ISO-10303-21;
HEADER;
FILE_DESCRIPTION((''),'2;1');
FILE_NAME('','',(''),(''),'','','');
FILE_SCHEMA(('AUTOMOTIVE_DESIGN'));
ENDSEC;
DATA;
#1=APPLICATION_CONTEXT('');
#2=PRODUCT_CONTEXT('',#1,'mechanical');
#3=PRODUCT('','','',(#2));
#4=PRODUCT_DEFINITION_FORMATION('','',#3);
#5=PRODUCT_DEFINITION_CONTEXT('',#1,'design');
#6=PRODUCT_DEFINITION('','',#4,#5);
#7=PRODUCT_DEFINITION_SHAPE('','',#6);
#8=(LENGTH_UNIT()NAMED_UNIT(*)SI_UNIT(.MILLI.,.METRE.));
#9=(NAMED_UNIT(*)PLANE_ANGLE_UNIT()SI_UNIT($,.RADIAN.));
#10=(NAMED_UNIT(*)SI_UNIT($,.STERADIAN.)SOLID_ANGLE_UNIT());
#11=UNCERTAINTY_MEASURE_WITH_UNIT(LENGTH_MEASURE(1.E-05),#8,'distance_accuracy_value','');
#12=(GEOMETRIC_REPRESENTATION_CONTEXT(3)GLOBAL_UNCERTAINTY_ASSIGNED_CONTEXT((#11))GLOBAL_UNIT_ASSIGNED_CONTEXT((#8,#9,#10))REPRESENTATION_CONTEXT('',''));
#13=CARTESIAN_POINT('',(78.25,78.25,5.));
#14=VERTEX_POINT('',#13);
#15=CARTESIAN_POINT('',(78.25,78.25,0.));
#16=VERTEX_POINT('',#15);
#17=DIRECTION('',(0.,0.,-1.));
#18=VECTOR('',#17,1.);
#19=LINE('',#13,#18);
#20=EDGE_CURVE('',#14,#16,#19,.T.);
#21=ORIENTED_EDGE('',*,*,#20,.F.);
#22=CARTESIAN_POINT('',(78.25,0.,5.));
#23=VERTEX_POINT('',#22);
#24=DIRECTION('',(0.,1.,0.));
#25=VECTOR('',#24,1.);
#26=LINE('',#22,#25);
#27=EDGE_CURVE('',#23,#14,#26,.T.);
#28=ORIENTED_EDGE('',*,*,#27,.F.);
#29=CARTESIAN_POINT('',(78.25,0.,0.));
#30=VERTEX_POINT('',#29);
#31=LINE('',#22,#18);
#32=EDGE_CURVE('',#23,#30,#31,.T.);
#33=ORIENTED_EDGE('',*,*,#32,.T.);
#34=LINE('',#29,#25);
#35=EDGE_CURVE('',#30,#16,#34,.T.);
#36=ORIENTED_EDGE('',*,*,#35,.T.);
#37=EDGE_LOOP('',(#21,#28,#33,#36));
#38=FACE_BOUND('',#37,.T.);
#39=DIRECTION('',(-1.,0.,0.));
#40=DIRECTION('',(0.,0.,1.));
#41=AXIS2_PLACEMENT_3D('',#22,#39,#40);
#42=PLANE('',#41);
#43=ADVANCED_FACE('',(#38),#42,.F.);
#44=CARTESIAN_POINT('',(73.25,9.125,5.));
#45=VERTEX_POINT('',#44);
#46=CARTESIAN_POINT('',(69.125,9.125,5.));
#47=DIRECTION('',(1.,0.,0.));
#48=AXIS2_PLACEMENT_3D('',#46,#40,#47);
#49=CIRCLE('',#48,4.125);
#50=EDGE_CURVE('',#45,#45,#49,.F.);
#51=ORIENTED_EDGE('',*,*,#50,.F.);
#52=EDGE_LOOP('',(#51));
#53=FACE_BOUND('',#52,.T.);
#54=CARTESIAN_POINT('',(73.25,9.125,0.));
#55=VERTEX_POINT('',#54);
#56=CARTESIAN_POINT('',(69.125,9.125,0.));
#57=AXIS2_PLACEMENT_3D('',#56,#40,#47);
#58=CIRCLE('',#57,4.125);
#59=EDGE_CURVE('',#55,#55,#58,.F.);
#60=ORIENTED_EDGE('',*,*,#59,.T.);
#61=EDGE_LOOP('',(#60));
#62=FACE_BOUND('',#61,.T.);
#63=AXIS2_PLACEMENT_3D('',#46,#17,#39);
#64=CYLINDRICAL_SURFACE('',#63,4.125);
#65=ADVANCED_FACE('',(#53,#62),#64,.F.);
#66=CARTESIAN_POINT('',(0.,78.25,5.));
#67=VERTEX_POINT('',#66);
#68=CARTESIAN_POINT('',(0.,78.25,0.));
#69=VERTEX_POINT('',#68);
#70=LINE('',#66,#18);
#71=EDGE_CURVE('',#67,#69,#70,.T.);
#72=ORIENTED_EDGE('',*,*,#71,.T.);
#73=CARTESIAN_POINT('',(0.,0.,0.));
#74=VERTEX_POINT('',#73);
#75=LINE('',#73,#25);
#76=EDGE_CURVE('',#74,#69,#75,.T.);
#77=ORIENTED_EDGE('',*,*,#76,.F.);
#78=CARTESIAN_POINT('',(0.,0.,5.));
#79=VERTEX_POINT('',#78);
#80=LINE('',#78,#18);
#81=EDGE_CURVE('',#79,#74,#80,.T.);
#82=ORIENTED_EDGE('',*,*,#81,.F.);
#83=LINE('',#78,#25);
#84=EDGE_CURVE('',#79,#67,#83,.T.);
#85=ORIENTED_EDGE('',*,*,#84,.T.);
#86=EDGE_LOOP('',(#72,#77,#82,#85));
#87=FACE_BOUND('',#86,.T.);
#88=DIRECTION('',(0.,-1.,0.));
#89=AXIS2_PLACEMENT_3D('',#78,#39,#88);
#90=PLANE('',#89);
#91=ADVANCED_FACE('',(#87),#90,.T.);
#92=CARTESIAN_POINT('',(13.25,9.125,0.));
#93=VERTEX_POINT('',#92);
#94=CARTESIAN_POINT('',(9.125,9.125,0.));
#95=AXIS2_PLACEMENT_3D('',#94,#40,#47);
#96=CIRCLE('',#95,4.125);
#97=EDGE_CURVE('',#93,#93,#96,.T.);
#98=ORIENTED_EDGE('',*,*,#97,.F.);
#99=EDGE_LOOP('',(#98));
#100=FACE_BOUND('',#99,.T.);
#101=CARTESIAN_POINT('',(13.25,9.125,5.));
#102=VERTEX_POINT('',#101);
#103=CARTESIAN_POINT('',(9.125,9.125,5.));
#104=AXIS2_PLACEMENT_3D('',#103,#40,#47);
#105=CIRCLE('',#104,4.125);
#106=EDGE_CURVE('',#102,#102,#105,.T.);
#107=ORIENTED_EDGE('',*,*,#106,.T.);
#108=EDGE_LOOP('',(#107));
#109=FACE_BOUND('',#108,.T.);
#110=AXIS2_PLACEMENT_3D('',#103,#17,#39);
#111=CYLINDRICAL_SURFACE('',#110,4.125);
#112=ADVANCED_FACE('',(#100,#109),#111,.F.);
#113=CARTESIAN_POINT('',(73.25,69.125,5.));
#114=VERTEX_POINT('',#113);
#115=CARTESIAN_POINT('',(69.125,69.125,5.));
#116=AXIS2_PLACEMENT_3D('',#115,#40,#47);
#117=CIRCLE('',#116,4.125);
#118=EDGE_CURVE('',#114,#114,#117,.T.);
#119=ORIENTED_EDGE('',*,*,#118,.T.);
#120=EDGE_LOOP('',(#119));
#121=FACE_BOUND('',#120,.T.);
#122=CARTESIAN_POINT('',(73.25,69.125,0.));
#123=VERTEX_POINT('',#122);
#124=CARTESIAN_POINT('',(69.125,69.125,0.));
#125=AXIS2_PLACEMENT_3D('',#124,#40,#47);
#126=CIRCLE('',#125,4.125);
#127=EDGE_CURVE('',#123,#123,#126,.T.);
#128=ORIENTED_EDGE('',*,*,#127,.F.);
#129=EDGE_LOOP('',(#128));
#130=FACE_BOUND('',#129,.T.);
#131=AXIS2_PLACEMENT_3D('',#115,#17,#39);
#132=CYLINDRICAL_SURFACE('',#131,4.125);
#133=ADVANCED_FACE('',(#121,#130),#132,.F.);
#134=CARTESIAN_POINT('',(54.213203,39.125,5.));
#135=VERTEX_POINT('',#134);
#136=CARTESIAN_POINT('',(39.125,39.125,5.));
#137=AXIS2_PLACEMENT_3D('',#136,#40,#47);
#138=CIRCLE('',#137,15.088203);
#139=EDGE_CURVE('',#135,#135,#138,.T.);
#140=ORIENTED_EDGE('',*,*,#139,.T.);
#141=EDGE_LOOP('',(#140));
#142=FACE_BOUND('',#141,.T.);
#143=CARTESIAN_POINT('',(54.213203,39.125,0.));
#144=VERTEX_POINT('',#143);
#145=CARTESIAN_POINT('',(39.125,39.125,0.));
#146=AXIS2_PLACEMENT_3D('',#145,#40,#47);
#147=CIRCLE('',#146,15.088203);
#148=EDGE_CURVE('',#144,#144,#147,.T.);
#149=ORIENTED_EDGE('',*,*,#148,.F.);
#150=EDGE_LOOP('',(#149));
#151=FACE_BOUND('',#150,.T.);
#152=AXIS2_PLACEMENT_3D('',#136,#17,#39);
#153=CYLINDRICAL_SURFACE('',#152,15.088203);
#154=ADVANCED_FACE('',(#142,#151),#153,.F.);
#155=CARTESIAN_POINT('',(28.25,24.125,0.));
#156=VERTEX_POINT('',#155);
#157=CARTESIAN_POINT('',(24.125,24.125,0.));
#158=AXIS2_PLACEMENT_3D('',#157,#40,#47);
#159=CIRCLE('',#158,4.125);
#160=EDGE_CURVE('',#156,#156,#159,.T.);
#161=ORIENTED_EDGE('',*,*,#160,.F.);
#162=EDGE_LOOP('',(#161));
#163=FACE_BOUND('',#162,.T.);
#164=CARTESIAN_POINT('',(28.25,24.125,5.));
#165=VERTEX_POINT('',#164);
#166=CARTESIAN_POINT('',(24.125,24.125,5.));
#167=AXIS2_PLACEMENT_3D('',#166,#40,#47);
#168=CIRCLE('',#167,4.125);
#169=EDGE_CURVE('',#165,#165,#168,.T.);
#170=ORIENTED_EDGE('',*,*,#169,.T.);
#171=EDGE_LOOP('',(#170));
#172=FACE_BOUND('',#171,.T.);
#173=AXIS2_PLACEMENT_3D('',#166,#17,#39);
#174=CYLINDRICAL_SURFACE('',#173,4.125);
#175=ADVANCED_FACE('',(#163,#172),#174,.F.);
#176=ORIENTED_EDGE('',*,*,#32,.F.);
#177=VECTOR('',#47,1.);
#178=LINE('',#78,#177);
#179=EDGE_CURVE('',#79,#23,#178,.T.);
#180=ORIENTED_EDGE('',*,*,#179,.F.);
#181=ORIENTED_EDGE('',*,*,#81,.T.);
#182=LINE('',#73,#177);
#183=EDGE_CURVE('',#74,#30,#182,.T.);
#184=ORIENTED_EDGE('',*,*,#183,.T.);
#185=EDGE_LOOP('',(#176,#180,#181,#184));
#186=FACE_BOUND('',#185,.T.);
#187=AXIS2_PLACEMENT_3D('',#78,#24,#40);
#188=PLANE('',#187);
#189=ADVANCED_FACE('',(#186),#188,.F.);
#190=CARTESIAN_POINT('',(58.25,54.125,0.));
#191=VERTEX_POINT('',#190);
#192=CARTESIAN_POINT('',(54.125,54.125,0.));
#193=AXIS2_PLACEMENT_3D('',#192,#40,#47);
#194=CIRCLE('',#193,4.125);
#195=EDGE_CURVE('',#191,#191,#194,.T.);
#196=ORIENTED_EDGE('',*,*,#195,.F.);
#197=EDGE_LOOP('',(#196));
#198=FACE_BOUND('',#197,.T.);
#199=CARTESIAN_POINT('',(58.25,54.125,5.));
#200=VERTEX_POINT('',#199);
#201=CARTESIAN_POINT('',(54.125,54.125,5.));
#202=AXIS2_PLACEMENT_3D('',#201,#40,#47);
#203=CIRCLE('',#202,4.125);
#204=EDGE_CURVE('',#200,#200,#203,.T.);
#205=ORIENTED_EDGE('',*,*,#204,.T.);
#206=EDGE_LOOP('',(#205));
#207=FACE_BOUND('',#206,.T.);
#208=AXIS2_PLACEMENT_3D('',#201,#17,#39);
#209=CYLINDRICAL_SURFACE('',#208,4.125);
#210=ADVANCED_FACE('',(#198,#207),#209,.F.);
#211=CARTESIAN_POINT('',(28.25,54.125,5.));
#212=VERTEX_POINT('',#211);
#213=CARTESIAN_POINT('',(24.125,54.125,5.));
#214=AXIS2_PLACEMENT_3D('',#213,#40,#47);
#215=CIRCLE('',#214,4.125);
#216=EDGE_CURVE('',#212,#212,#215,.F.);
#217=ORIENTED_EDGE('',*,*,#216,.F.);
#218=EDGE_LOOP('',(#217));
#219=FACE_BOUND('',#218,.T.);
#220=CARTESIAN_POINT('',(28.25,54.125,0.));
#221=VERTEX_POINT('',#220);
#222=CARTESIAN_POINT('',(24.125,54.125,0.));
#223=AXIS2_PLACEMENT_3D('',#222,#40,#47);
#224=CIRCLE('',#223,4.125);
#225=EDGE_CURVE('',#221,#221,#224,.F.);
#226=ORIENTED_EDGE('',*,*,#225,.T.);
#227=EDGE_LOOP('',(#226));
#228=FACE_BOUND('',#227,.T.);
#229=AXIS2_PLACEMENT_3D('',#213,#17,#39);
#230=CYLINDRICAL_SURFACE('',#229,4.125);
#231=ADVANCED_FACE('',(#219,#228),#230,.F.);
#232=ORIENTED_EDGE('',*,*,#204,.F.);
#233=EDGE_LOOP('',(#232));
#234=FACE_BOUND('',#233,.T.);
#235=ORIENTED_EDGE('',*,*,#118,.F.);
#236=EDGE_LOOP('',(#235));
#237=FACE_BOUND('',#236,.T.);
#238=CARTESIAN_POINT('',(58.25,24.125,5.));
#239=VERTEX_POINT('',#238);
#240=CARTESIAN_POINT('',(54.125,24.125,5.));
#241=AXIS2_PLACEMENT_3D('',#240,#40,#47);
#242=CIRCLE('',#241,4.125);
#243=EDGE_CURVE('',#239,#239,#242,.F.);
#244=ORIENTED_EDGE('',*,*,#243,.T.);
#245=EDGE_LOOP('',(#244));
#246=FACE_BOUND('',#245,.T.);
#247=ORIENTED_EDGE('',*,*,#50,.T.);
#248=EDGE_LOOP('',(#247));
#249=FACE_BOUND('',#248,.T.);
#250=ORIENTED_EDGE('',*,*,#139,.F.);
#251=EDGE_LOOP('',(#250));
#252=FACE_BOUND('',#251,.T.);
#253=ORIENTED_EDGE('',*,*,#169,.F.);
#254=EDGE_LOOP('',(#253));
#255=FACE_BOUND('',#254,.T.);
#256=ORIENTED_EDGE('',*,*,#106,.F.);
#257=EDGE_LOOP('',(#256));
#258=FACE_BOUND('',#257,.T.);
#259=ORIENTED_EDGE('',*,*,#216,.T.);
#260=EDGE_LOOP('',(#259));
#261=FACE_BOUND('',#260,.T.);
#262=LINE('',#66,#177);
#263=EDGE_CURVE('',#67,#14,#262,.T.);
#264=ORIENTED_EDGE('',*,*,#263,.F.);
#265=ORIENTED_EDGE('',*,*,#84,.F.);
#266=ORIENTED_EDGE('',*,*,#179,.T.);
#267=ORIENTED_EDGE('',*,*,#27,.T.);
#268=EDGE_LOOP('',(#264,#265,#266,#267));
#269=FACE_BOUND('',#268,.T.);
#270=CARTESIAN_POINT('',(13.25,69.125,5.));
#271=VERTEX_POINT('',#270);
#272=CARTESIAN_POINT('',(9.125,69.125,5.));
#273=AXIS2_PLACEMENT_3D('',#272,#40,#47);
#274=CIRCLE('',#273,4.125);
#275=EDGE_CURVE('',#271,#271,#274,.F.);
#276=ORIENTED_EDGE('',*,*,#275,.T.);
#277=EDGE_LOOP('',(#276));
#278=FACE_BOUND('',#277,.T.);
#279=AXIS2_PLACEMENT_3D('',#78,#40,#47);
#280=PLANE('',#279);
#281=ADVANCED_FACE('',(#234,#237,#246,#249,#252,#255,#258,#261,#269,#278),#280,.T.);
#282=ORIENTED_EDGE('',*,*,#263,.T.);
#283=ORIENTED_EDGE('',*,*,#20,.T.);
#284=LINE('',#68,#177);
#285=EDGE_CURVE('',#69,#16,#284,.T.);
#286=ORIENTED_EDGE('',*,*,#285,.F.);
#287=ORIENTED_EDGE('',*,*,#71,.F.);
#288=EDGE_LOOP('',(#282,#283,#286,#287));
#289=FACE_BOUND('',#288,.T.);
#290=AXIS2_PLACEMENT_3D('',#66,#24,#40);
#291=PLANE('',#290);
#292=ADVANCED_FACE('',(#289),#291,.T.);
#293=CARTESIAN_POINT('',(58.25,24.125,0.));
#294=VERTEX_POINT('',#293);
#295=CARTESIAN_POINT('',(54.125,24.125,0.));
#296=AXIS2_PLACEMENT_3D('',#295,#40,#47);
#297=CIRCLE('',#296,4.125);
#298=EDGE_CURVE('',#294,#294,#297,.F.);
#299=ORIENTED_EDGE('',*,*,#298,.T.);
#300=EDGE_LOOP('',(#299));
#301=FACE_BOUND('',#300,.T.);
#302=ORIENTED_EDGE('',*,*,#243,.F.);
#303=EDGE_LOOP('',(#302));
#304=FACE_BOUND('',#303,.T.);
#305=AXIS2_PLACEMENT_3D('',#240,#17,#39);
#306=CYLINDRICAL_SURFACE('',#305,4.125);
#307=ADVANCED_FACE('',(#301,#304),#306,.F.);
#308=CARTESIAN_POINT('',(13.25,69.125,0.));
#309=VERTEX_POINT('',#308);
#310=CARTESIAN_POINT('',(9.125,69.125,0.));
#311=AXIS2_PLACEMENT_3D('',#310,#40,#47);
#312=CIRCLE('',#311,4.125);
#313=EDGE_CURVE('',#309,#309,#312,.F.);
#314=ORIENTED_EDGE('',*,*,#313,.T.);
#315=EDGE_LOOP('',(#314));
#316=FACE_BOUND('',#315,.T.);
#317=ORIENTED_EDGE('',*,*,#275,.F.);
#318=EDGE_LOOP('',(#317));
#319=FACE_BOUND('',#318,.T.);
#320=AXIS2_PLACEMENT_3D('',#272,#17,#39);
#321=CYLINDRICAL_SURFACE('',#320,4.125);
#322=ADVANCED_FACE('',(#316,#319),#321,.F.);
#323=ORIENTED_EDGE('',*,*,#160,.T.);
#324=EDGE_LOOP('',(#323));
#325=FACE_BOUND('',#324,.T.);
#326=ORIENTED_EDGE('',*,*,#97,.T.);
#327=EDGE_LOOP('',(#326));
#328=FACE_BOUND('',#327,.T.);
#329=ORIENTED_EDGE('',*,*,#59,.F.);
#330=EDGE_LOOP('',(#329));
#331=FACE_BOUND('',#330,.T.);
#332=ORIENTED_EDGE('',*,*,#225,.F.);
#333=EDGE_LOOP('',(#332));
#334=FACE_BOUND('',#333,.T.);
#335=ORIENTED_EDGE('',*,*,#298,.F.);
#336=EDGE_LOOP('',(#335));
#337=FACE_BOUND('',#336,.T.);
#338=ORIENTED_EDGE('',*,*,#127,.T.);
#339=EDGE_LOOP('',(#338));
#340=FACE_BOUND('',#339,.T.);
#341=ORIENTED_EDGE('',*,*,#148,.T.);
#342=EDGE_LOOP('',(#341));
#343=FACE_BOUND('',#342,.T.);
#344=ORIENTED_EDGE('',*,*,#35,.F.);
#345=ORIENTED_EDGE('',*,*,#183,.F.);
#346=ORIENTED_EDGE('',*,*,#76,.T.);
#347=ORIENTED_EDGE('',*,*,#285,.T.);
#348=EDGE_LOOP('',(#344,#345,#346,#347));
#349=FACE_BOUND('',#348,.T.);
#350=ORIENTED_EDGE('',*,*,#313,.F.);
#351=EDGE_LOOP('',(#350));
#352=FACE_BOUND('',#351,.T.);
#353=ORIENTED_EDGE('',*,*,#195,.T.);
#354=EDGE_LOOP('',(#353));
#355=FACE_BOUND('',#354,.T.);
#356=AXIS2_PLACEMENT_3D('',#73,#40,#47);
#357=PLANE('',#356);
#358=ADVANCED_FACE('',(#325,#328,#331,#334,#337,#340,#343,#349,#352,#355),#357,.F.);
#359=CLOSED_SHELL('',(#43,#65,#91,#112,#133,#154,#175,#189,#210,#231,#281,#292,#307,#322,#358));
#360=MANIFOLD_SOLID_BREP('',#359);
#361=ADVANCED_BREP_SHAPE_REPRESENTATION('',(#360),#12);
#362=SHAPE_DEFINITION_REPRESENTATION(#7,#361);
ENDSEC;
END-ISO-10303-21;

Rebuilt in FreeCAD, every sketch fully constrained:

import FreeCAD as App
import Part
import Sketcher

V = App.Vector

doc = App.newDocument("Part")
body = doc.addObject("PartDesign::Body", "Body")

# Sketch on XY plane
sketch1 = body.newObject("Sketcher::SketchObject", "Sketch")
sketch1.AttachmentSupport = (doc.getObject("XY_Plane"), [""])
sketch1.MapMode = "FlatFace"
sketch1.addGeometry(Part.LineSegment(V(0, 78.25, 0), V(0, 0, 0)), False)
sketch1.addGeometry(Part.LineSegment(V(0, 0, 0), V(78.25, 0, 0)), False)
sketch1.addGeometry(Part.LineSegment(V(78.25, 0, 0), V(78.25, 78.25, 0)), False)
sketch1.addGeometry(Part.LineSegment(V(78.25, 78.25, 0), V(0, 78.25, 0)), False)
sketch1.addGeometry(Part.Circle(V(9.125, 9.125, 0), V(0, 0, 1), 4.125), False)
sketch1.addGeometry(Part.Circle(V(24.125, 24.125, 0), V(0, 0, 1), 4.125), False)
sketch1.addGeometry(Part.Circle(V(69.125, 9.125, 0), V(0, 0, 1), 4.125), False)
sketch1.addGeometry(Part.Circle(V(54.125, 24.125, 0), V(0, 0, 1), 4.125), False)
sketch1.addGeometry(Part.Circle(V(24.125, 54.125, 0), V(0, 0, 1), 4.125), False)
sketch1.addGeometry(Part.Circle(V(9.125, 69.125, 0), V(0, 0, 1), 4.125), False)
sketch1.addGeometry(Part.Circle(V(39.125, 39.125, 0), V(0, 0, 1), 15.088203), False)
sketch1.addGeometry(Part.Circle(V(54.125, 54.125, 0), V(0, 0, 1), 4.125), False)
sketch1.addGeometry(Part.Circle(V(69.125, 69.125, 0), V(0, 0, 1), 4.125), False)
sketch1.addConstraint(Sketcher.Constraint("Coincident", 0, 2, 1, 1))
sketch1.addConstraint(Sketcher.Constraint("Coincident", 1, 2, 2, 1))
sketch1.addConstraint(Sketcher.Constraint("Coincident", 2, 2, 3, 1))
sketch1.addConstraint(Sketcher.Constraint("Coincident", 3, 2, 0, 1))
sketch1.addConstraint(Sketcher.Constraint("Vertical", 0))
sketch1.addConstraint(Sketcher.Constraint("Horizontal", 1))
sketch1.addConstraint(Sketcher.Constraint("Vertical", 2))
sketch1.addConstraint(Sketcher.Constraint("Horizontal", 3))
sketch1.addConstraint(Sketcher.Constraint("Coincident", 0, 2, -1, 1))
sketch1.addConstraint(Sketcher.Constraint("Equal", 4, 5))
sketch1.addConstraint(Sketcher.Constraint("Equal", 5, 6))
sketch1.addConstraint(Sketcher.Constraint("Equal", 6, 7))
sketch1.addConstraint(Sketcher.Constraint("Equal", 7, 8))
sketch1.addConstraint(Sketcher.Constraint("Equal", 8, 9))
sketch1.addConstraint(Sketcher.Constraint("Equal", 9, 11))
sketch1.addConstraint(Sketcher.Constraint("Equal", 11, 12))
sketch1.addConstraint(Sketcher.Constraint("Horizontal", 4, 3, 6, 3))
sketch1.addConstraint(Sketcher.Constraint("Horizontal", 5, 3, 7, 3))
sketch1.addConstraint(Sketcher.Constraint("Horizontal", 8, 3, 11, 3))
sketch1.addConstraint(Sketcher.Constraint("Horizontal", 9, 3, 12, 3))
sketch1.addConstraint(Sketcher.Constraint("Vertical", 5, 3, 8, 3))
sketch1.addConstraint(Sketcher.Constraint("Vertical", 4, 3, 9, 3))
sketch1.addConstraint(Sketcher.Constraint("Vertical", 7, 3, 11, 3))
sketch1.addConstraint(Sketcher.Constraint("Vertical", 6, 3, 12, 3))
sketch1.addConstraint(Sketcher.Constraint("Equal", 3, 0))
sketch1.addConstraint(Sketcher.Constraint("Diameter", 4, 8.25))
sketch1.addConstraint(Sketcher.Constraint("DistanceX", 4, 3, 5, 3, 15.0))
sketch1.addConstraint(Sketcher.Constraint("DistanceY", 4, 3, 5, 3, 15.0))
sketch1.addConstraint(Sketcher.Constraint("DistanceX", 5, 3, 6, 3, 45.0))
sketch1.addConstraint(Sketcher.Constraint("DistanceX", 7, 3, 6, 3, 15.0))
sketch1.addConstraint(Sketcher.Constraint("DistanceY", 5, 3, 8, 3, 30.0))
sketch1.addConstraint(Sketcher.Constraint("DistanceY", 8, 3, 9, 3, 15.0))
sketch1.addConstraint(Sketcher.Constraint("DistanceX", 5, 3, 10, 3, 15.0))
sketch1.addConstraint(Sketcher.Constraint("DistanceY", 5, 3, 10, 3, 15.0))
sketch1.addConstraint(Sketcher.Constraint("DistanceX", 1, 1, 1, 2, 78.25))
sketch1.addConstraint(Sketcher.Constraint("Diameter", 10, 30.176407))
sketch1.addConstraint(Sketcher.Constraint("DistanceX", -1, 1, 4, 3, 9.125))
sketch1.addConstraint(Sketcher.Constraint("DistanceY", -1, 1, 4, 3, 9.125))
pad1 = body.newObject("PartDesign::Pad", "Pad")
pad1.Profile = sketch1
pad1.Length = 5

doc.recompute()
